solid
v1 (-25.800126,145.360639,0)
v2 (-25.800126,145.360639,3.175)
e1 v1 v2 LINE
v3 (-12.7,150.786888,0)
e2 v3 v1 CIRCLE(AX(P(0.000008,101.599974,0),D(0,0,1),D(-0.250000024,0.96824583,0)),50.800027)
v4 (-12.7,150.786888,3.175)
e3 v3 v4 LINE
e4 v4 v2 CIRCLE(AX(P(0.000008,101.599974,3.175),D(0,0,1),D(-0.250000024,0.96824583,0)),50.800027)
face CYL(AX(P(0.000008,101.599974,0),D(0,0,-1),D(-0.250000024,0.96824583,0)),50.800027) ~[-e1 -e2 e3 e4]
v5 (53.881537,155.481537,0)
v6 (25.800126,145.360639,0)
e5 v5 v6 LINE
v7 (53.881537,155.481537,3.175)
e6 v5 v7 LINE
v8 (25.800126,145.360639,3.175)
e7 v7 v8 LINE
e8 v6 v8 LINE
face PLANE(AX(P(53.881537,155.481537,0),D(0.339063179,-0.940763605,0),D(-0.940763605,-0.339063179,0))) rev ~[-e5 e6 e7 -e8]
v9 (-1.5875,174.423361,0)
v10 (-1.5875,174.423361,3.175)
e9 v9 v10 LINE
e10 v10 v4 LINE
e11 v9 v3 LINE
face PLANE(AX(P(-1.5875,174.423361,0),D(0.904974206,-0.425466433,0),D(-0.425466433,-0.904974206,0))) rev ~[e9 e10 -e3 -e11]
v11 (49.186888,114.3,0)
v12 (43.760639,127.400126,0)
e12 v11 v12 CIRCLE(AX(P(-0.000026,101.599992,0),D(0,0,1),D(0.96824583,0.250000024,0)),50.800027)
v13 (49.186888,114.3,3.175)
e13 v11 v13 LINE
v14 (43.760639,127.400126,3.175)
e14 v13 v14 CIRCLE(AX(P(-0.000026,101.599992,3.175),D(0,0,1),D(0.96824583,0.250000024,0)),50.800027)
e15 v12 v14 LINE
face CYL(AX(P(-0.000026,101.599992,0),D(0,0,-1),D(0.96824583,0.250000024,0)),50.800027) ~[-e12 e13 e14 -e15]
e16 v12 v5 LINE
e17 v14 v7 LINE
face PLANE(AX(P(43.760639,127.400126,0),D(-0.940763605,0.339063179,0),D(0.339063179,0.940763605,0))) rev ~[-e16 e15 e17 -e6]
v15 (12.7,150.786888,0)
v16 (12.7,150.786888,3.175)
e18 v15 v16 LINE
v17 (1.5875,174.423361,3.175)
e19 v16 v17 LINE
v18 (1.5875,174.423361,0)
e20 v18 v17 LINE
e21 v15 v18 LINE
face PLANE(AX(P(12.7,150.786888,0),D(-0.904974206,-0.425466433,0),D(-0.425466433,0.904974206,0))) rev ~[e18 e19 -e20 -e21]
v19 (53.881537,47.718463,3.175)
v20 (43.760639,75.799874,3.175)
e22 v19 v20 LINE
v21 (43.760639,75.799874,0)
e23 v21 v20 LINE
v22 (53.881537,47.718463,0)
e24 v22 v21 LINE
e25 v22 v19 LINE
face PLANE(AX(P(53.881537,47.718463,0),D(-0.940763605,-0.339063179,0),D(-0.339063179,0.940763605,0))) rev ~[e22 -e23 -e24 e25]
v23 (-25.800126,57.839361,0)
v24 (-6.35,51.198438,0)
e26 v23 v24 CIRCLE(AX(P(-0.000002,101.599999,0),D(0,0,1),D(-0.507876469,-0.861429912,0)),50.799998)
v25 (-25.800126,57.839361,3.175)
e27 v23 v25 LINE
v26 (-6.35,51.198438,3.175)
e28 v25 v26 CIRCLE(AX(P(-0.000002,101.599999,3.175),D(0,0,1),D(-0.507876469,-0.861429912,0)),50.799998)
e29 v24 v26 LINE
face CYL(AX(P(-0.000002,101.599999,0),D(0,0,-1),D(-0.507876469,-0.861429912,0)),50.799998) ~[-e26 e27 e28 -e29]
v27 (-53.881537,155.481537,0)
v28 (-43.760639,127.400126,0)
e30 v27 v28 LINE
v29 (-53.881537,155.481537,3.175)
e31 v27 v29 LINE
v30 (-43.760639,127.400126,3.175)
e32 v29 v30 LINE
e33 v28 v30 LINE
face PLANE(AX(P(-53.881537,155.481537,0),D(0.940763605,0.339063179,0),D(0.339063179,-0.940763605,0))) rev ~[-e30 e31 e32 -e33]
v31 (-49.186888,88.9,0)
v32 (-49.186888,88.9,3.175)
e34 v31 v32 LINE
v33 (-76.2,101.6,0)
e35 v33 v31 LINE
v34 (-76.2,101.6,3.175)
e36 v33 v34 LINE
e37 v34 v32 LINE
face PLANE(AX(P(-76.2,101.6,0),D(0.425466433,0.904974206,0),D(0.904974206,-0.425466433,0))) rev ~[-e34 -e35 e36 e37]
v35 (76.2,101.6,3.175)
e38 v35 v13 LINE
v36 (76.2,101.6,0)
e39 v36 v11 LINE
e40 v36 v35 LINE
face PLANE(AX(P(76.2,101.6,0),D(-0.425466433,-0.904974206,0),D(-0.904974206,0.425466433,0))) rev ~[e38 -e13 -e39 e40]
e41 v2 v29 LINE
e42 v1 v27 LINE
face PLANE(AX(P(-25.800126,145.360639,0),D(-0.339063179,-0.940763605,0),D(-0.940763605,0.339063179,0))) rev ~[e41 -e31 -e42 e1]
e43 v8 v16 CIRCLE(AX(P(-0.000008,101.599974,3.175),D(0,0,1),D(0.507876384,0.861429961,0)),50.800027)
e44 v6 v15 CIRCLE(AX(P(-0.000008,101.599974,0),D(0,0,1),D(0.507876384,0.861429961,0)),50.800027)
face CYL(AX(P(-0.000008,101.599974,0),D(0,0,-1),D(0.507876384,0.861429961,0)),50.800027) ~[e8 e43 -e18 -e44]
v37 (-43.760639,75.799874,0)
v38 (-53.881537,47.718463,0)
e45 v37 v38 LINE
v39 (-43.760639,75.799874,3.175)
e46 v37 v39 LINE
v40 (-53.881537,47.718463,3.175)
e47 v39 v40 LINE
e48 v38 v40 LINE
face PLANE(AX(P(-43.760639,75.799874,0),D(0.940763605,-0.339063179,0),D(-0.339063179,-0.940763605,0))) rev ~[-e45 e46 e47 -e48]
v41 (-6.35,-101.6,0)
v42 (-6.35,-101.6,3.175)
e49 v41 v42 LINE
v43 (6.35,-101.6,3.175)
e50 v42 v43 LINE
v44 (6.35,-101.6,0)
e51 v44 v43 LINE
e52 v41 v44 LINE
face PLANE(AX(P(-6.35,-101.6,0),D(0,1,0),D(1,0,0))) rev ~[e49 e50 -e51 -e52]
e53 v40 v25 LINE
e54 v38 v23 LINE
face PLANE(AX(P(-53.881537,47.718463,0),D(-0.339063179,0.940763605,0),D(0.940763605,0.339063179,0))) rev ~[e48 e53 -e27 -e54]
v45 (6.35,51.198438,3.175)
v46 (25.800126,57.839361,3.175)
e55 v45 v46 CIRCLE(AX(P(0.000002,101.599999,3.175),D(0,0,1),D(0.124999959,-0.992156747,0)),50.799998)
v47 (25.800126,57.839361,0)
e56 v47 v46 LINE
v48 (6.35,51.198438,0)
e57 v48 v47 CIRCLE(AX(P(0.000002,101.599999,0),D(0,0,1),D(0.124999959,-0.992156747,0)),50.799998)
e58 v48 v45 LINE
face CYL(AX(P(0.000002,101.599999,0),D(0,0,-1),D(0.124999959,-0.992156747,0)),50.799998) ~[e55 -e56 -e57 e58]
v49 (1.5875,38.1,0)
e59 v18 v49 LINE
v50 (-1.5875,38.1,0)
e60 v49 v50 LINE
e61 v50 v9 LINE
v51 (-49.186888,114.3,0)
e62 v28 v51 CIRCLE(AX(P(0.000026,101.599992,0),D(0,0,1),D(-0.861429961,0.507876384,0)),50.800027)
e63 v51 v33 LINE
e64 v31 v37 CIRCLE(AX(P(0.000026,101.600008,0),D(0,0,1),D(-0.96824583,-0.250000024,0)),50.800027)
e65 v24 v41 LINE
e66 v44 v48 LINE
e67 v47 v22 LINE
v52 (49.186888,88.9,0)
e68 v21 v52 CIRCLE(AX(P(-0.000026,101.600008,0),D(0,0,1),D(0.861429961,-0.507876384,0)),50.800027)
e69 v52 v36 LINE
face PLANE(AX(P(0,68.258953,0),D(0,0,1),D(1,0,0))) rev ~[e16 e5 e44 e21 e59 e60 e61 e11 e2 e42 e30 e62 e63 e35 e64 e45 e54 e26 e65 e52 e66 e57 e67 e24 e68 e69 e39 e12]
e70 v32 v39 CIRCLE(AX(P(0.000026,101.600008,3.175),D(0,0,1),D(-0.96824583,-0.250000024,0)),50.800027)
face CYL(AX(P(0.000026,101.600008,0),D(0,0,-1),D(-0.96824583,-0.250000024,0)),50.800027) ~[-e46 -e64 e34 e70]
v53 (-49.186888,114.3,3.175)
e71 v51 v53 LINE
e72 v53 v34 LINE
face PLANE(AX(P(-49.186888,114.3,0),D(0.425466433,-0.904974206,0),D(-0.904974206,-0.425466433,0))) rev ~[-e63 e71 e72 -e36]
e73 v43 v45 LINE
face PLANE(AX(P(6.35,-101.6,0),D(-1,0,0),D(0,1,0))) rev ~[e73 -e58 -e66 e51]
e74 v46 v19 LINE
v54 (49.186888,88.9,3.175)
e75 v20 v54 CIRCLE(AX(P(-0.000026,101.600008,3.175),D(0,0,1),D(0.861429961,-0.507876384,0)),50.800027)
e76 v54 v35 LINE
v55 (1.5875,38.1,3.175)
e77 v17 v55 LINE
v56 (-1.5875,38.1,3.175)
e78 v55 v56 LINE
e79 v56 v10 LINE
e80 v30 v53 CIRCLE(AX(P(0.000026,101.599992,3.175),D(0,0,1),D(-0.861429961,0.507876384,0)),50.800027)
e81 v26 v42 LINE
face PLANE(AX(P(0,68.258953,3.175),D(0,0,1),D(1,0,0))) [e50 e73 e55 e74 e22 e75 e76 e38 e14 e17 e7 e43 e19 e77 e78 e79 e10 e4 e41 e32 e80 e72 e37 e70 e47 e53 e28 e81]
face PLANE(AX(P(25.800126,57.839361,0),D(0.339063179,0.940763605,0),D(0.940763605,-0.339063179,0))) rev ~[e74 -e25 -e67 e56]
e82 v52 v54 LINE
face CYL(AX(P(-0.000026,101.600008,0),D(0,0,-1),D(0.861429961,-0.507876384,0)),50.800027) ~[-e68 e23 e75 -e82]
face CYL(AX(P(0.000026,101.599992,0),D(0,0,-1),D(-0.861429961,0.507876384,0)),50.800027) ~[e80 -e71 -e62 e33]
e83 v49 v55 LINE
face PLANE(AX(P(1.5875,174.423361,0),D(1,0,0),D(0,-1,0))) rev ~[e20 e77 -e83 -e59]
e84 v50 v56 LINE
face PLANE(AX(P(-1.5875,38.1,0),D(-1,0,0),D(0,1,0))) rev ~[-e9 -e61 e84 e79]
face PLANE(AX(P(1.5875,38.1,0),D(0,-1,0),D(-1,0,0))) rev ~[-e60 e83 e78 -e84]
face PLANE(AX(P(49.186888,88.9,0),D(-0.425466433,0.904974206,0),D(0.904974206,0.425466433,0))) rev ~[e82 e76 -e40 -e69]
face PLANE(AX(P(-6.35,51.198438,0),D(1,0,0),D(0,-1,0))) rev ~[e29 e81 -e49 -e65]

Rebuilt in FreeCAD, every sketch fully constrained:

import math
import FreeCAD as App
import Part
import Sketcher
Q = App.Units.Quantity

doc = App.newDocument("Part")
body = doc.addObject("PartDesign::Body", "Body")

sketch1 = doc.addObject("Sketcher::SketchObject", "Sketch")
body.addObject(sketch1)
sketch1.AttachmentSupport = (doc.XY_Plane, [""])
sketch1.MapMode = "FlatFace"
sketch1.addGeometry([
    Part.LineSegment(App.Vector(-6.35, 51.198438, 0), App.Vector(-6.35, -101.6, 0)),
    Part.LineSegment(App.Vector(-6.35, -101.6, 0), App.Vector(6.35, -101.6, 0)),
    Part.LineSegment(App.Vector(6.35, -101.6, 0), App.Vector(6.35, 51.198438, 0)),
    Part.ArcOfCircle(Part.Circle(App.Vector(0.000002, 101.599999, 0), App.Vector(0, 0, 1), 50.799998), math.radians(-82.819247), math.radians(-59.477514)),
    Part.LineSegment(App.Vector(25.800126, 57.839361, 0), App.Vector(53.881537, 47.718463, 0)),
    Part.LineSegment(App.Vector(53.881537, 47.718463, 0), App.Vector(43.760639, 75.799874, 0)),
    Part.ArcOfCircle(Part.Circle(App.Vector(-0.000026, 101.600008, 0), App.Vector(0, 0, 1), 50.800027), math.radians(-30.52248), math.radians(-14.477514)),
    Part.LineSegment(App.Vector(49.186888, 88.9, 0), App.Vector(76.2, 101.6, 0)),
    Part.LineSegment(App.Vector(76.2, 101.6, 0), App.Vector(49.186888, 114.3, 0)),
    Part.ArcOfCircle(Part.Circle(App.Vector(-0.000026, 101.599992, 0), App.Vector(0, 0, 1), 50.800027), math.radians(14.477514), math.radians(30.52248)),
    Part.LineSegment(App.Vector(43.760639, 127.400126, 0), App.Vector(53.881537, 155.481537, 0)),
    Part.LineSegment(App.Vector(53.881537, 155.481537, 0), App.Vector(25.800126, 145.360639, 0)),
    Part.ArcOfCircle(Part.Circle(App.Vector(-0.000008, 101.599974, 0), App.Vector(0, 0, 1), 50.800027), math.radians(59.47752), math.radians(75.522486)),
    Part.LineSegment(App.Vector(12.7, 150.786888, 0), App.Vector(1.5875, 174.423361, 0)),
    Part.LineSegment(App.Vector(1.5875, 174.423361, 0), App.Vector(1.5875, 38.1, 0)),
    Part.LineSegment(App.Vector(1.5875, 38.1, 0), App.Vector(-1.5875, 38.1, 0)),
    Part.LineSegment(App.Vector(-1.5875, 38.1, 0), App.Vector(-1.5875, 174.423361, 0)),
    Part.LineSegment(App.Vector(-1.5875, 174.423361, 0), App.Vector(-12.7, 150.786888, 0)),
    Part.ArcOfCircle(Part.Circle(App.Vector(0.000008, 101.599974, 0), App.Vector(0, 0, 1), 50.800027), math.radians(104.477514), math.radians(120.52248)),
    Part.LineSegment(App.Vector(-25.800126, 145.360639, 0), App.Vector(-53.881537, 155.481537, 0)),
    Part.LineSegment(App.Vector(-53.881537, 155.481537, 0), App.Vector(-43.760639, 127.400126, 0)),
    Part.ArcOfCircle(Part.Circle(App.Vector(0.000026, 101.599992, 0), App.Vector(0, 0, 1), 50.800027), math.radians(149.47752), math.radians(165.522486)),
    Part.LineSegment(App.Vector(-49.186888, 114.3, 0), App.Vector(-76.2, 101.6, 0)),
    Part.LineSegment(App.Vector(-76.2, 101.6, 0), App.Vector(-49.186888, 88.9, 0)),
    Part.ArcOfCircle(Part.Circle(App.Vector(0.000026, 101.600008, 0), App.Vector(0, 0, 1), 50.800027), math.radians(-165.522486), math.radians(-149.47752)),
    Part.LineSegment(App.Vector(-43.760639, 75.799874, 0), App.Vector(-53.881537, 47.718463, 0)),
    Part.LineSegment(App.Vector(-53.881537, 47.718463, 0), App.Vector(-25.800126, 57.839361, 0)),
    Part.ArcOfCircle(Part.Circle(App.Vector(-0.000002, 101.599999, 0), App.Vector(0, 0, 1), 50.799998), math.radians(-120.522486), math.radians(-97.180753)),
], False)
sketch1.addConstraint([
    Sketcher.Constraint("Coincident", 0, 2, 1, 1),
    Sketcher.Constraint("Coincident", 1, 2, 2, 1),
    Sketcher.Constraint("Coincident", 2, 2, 3, 1),
    Sketcher.Constraint("Coincident", 3, 2, 4, 1),
    Sketcher.Constraint("Coincident", 4, 2, 5, 1),
    Sketcher.Constraint("Coincident", 5, 2, 6, 1),
    Sketcher.Constraint("Coincident", 6, 2, 7, 1),
    Sketcher.Constraint("Coincident", 7, 2, 8, 1),
    Sketcher.Constraint("Coincident", 8, 2, 9, 1),
    Sketcher.Constraint("Coincident", 9, 2, 10, 1),
    Sketcher.Constraint("Coincident", 10, 2, 11, 1),
    Sketcher.Constraint("Coincident", 11, 2, 12, 1),
    Sketcher.Constraint("Coincident", 12, 2, 13, 1),
    Sketcher.Constraint("Coincident", 13, 2, 14, 1),
    Sketcher.Constraint("Coincident", 14, 2, 15, 1),
    Sketcher.Constraint("Coincident", 15, 2, 16, 1),
    Sketcher.Constraint("Coincident", 16, 2, 17, 1),
    Sketcher.Constraint("Coincident", 17, 2, 18, 1),
    Sketcher.Constraint("Coincident", 18, 2, 19, 1),
    Sketcher.Constraint("Coincident", 19, 2, 20, 1),
    Sketcher.Constraint("Coincident", 20, 2, 21, 1),
    Sketcher.Constraint("Coincident", 21, 2, 22, 1),
    Sketcher.Constraint("Coincident", 22, 2, 23, 1),
    Sketcher.Constraint("Coincident", 23, 2, 24, 1),
    Sketcher.Constraint("Coincident", 24, 2, 25, 1),
    Sketcher.Constraint("Coincident", 25, 2, 26, 1),
    Sketcher.Constraint("Coincident", 26, 2, 27, 1),
    Sketcher.Constraint("Coincident", 27, 2, 0, 1),
    Sketcher.Constraint("Vertical", 0),
    Sketcher.Constraint("Horizontal", 1),
    Sketcher.Constraint("Vertical", 2),
    Sketcher.Constraint("Vertical", 14),
    Sketcher.Constraint("Horizontal", 15),
    Sketcher.Constraint("Vertical", 16),
    Sketcher.Constraint("Coincident", 27, 3, 3, 3),
    Sketcher.Constraint("Equal", 6, 9),
    Sketcher.Constraint("Equal", 9, 12),
    Sketcher.Constraint("Equal", 12, 18),
    Sketcher.Constraint("Equal", 18, 21),
    Sketcher.Constraint("Equal", 21, 24),
    Sketcher.Constraint("Equal", 3, 27),
    Sketcher.Constraint("Symmetric", 12, 3, 18, 3, -2),
    Sketcher.Constraint("Symmetric", 9, 3, 21, 3, -2),
    Sketcher.Constraint("Symmetric", 6, 3, 24, 3, -2),
    Sketcher.Constraint("Symmetric", 13, 2, 16, 2, -2),
    Sketcher.Constraint("Symmetric", 10, 2, 19, 2, -2),
    Sketcher.Constraint("Symmetric", 7, 2, 22, 2, -2),
    Sketcher.Constraint("Symmetric", 4, 2, 25, 2, -2),
    Sketcher.Constraint("Symmetric", 3, 2, 26, 2, -2),
    Sketcher.Constraint("Perpendicular", 4, 10),
    Sketcher.Constraint("Perpendicular", 5, 11),
    Sketcher.Constraint("Perpendicular", 7, 13),
    Sketcher.Constraint("Perpendicular", 8, 17),
    Sketcher.Constraint("Perpendicular", 10, 19),
    Sketcher.Constraint("Perpendicular", 11, 20),
    Sketcher.Constraint("Perpendicular", 13, 22),
    Sketcher.Constraint("Perpendicular", 17, 23),
    Sketcher.Constraint("Perpendicular", 19, 25),
    Sketcher.Constraint("Perpendicular", 20, 26),
    Sketcher.Constraint("Horizontal", 27, 3, 7, 2),
    Sketcher.Constraint("Horizontal", 12, 2, 17, 2),
    Sketcher.Constraint("Horizontal", 2, 2, 27, 2),
    Sketcher.Constraint("Vertical", 6, 3, 9, 3),
    Sketcher.Constraint("Vertical", 6, 2, 8, 2),
    Sketcher.Constraint("Vertical", 5, 2, 9, 2),
    Sketcher.Constraint("Vertical", 4, 2, 10, 2),
    Sketcher.Constraint("Vertical", 3, 2, 11, 2),
    Sketcher.Constraint("Equal", 4, 5),
    Sketcher.Constraint("Equal", 5, 7),
    Sketcher.Constraint("Radius", 3, Q("1.9999999 in")),
    Sketcher.Constraint("DistanceX", 1, 1, 1, 2, Q("0.5 in")),
    Sketcher.Constraint("DistanceY", -1, 1, 3, 3, Q("4 in")),
    Sketcher.Constraint("DistanceY", 0, 2, -1, 1, Q("4 in")),
    Sketcher.Constraint("DistanceX", -1, 1, 7, 2, Q("3 in")),
    Sketcher.Constraint("DistanceY", 6, 2, 8, 2, Q("1 in")),
    Sketcher.Constraint("DistanceX", 17, 2, 12, 2, Q("1 in")),
    Sketcher.Constraint("DistanceY", -1, 1, 14, 2, Q("1.5 in")),
    Sketcher.Constraint("DistanceX", 15, 2, 15, 1, Q("0.125 in")),
    Sketcher.Constraint("Radius", 6, 50.800027),
    Sketcher.Constraint("DistanceY", 14, 2, 14, 1, 136.323361),
    Sketcher.Constraint("DistanceX", 21, 3, 3, 2, 25.8001),
    Sketcher.Constraint("DistanceX", 5, 2, 4, 2, 10.120898),
    Sketcher.Constraint("DistanceY", 5, 2, 18, 3, 25.8001),
])
pad1 = doc.addObject("PartDesign::Pad", "Pad")
body.addObject(pad1)
pad1.Profile = sketch1
pad1.Length = Q("0.125 in")

doc.recompute()
